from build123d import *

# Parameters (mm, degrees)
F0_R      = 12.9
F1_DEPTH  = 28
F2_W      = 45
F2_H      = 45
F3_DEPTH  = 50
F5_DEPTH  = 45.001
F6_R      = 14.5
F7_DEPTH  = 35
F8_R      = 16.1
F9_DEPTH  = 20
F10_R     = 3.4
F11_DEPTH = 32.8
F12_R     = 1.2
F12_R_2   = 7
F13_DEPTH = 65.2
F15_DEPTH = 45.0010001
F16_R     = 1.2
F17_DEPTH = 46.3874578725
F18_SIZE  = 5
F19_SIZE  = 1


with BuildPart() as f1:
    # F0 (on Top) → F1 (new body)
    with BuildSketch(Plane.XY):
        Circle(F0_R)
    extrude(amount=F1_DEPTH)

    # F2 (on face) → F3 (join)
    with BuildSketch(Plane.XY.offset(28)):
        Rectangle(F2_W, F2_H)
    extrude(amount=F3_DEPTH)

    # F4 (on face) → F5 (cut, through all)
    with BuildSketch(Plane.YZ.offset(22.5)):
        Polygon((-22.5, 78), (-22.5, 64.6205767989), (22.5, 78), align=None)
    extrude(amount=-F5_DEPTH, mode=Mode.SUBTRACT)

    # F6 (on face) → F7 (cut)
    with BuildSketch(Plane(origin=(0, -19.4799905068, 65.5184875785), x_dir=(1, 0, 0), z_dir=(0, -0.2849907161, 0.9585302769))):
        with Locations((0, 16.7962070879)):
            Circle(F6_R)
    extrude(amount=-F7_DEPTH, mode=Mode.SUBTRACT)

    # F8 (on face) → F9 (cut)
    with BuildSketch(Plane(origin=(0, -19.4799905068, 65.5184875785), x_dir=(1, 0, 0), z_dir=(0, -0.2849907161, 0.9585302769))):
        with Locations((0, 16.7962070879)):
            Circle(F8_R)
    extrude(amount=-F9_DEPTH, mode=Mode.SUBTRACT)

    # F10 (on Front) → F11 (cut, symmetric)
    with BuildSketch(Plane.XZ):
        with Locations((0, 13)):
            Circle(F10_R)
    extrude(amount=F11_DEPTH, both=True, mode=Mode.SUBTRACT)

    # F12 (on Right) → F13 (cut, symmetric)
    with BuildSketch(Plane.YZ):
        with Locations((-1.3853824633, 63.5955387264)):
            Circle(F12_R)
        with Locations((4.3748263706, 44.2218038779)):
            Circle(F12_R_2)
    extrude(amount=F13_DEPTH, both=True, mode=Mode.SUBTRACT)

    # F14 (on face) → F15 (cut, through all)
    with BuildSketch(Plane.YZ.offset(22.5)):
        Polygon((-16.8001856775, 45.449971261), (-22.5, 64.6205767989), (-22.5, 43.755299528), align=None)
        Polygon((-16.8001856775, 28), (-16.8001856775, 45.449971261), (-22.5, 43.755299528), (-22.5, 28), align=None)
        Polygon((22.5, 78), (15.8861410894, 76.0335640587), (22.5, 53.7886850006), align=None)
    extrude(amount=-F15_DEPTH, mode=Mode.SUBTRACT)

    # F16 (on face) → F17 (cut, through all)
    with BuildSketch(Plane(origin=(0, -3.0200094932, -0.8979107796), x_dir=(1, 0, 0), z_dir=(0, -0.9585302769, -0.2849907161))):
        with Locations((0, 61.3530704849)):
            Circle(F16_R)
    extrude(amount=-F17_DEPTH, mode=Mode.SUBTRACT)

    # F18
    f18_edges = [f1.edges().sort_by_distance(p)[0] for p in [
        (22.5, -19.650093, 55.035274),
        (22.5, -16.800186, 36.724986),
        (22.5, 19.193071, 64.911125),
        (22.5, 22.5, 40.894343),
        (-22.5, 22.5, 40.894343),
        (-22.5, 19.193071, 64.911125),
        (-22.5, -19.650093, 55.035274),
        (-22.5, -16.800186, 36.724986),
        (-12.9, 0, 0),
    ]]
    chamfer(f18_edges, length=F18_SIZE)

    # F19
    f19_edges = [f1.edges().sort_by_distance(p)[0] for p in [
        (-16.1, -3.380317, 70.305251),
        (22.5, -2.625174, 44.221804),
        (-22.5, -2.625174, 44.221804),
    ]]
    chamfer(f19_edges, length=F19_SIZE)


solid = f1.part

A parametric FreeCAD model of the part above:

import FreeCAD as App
import Part
import Sketcher


def edges_at(feature, points):
    """Names of the edges that pass closest to the given points."""
    edges = feature.Shape.Edges
    near = lambda p: min(range(len(edges)), key=lambda i: edges[i].distToShape(Part.Vertex(*p))[0])
    return sorted({f"Edge{near(p) + 1}" for p in points})


def add_polygon(sketch, points):
    """Adds a closed chain of lines whose ends are joined by coincident constraints."""
    first, n = sketch.GeometryCount, len(points)
    for a, b in zip(points, points[1:] + points[:1]):
        sketch.addGeometry(Part.LineSegment(App.Vector(*a, 0), App.Vector(*b, 0)), False)
    for i in range(n):
        sketch.addConstraint(Sketcher.Constraint("Coincident", first + i, 2, first + (i + 1) % n, 1))

doc = App.newDocument("Part")
params = doc.addObject("Spreadsheet::Sheet", "Params")
for row, (alias, value) in enumerate([
    ("sketch1_diameter", "25.8 mm"),
    ("pad1_length", "28 mm"),
    ("sketch2_width", "45 mm"),
    ("pad2_length", "50 mm"),
    ("sketch3_width", "45 mm"),
    ("sketch4_diameter", "29 mm"),
    ("pocket2_length", "35 mm"),
    ("sketch5_diameter", "32.2 mm"),
    ("pocket3_length", "20 mm"),
    ("sketch6_diameter", "6.8 mm"),
    ("pocket4_length", "65.6 mm"),
    ("sketch7_diameter", "14 mm"),
    ("sketch7_diameter2", "2.4 mm"),
    ("pocket5_length", "130.4 mm"),
    ("sketch8_length", "20 mm"),
    ("sketch8_length2", "6.9 mm"),
    ("sketch9_diameter", "2.4 mm"),
    ("chamfer_size", "5 mm"),
    ("chamfer2_size", "1 mm"),
], start=1):
    params.set(f"A{row}", alias)
    params.set(f"B{row}", "=" + value)
    params.setAlias(f"B{row}", alias)

body = doc.addObject("PartDesign::Body", "Body")

# Sketch on XY plane
sketch1 = body.newObject("Sketcher::SketchObject", "Sketch")
sketch1.AttachmentSupport = (doc.getObject("XY_Plane"), [""])
sketch1.MapMode = "FlatFace"
sketch1.addGeometry(Part.Circle(App.Vector(0, 0, 0), App.Vector(0, 0, 1), 13), False)
sketch1.addConstraint(Sketcher.Constraint("Coincident", 0, 3, -1, 1))
sketch1.addConstraint(Sketcher.Constraint("Diameter", 0, 25.8))
sketch1.setExpression("Constraints[1]", "Params.sketch1_diameter")
pad1 = body.newObject("PartDesign::Pad", "Pad")
pad1.Profile = sketch1
pad1.setExpression("Length", "Params.pad1_length")

# Sketch on XY plane
sketch2 = body.newObject("Sketcher::SketchObject", "Sketch001")
sketch2.AttachmentSupport = (doc.getObject("XY_Plane"), [""])
sketch2.MapMode = "FlatFace"
sketch2.AttachmentOffset = App.Placement(App.Vector(0, 0, 28), App.Rotation())
add_polygon(sketch2, [(-22, 22), (-22, -22), (22, -22), (22, 22)])  # lines 0-3
sketch2.addConstraint(Sketcher.Constraint("Vertical", 0))
sketch2.addConstraint(Sketcher.Constraint("Horizontal", 1))
sketch2.addConstraint(Sketcher.Constraint("Vertical", 2))
sketch2.addConstraint(Sketcher.Constraint("Horizontal", 3))
sketch2.addConstraint(Sketcher.Constraint("Symmetric", 0, 2, 2, 2, -1, 1))
sketch2.addConstraint(Sketcher.Constraint("Equal", 3, 0))
sketch2.addConstraint(Sketcher.Constraint("DistanceX", 1, 1, 1, 2, 45.0))
sketch2.setExpression("Constraints[10]", "Params.sketch2_width")
pad2 = body.newObject("PartDesign::Pad", "Pad001")
pad2.Profile = sketch2
pad2.setExpression("Length", "Params.pad2_length")

# Sketch on YZ plane
sketch3 = body.newObject("Sketcher::SketchObject", "Sketch002")
sketch3.AttachmentSupport = (doc.getObject("YZ_Plane"), [""])
sketch3.MapMode = "FlatFace"
sketch3.AttachmentOffset = App.Placement(App.Vector(0, 0, 22.5), App.Rotation())
add_polygon(sketch3, [(-22, 78), (-22, 65), (22, 78)])  # lines 0-2
sketch3.addConstraint(Sketcher.Constraint("Vertical", 0))
sketch3.addConstraint(Sketcher.Constraint("Horizontal", 2))
sketch3.addConstraint(Sketcher.Constraint("DistanceX", 2, 2, 2, 1, 45.0))
sketch3.addConstraint(Sketcher.Constraint("DistanceY", -1, 1, 1, 2, 78.0))
sketch3.addConstraint(Sketcher.Constraint("DistanceX", 0, 2, -1, 1, 22.5))
sketch3.addConstraint(Sketcher.Constraint("DistanceY", 0, 2, 0, 1, 13.379423))
sketch3.setExpression("Constraints[5]", "Params.sketch3_width")
pocket1 = body.newObject("PartDesign::Pocket", "Pocket")
pocket1.Profile = sketch3
pocket1.Type = "ThroughAll"

# Sketch on an angled plane
sketch4 = body.newObject("Sketcher::SketchObject", "Sketch003")
sketch4.Placement = App.Placement(App.Vector(0, -19.479991, 65.518488), App.Rotation(App.Vector(1, 0, 0), App.Vector(0, 0.958530277, 0.284990716), App.Vector(0, -0.284990716, 0.958530277), "ZXY"))
sketch4.addGeometry(Part.Circle(App.Vector(0, 17, 0), App.Vector(0, 0, 1), 14), False)
sketch4.addConstraint(Sketcher.Constraint("PointOnObject", 0, 3, -2))
sketch4.addConstraint(Sketcher.Constraint("Diameter", 0, 29.0))
sketch4.addConstraint(Sketcher.Constraint("DistanceY", -1, 1, 0, 3, 16.796207))
sketch4.setExpression("Constraints[1]", "Params.sketch4_diameter")
pocket2 = body.newObject("PartDesign::Pocket", "Pocket001")
pocket2.Profile = sketch4
pocket2.setExpression("Length", "Params.pocket2_length")

# Sketch on an angled plane
sketch5 = body.newObject("Sketcher::SketchObject", "Sketch004")
sketch5.Placement = App.Placement(App.Vector(0, -19.479991, 65.518488), App.Rotation(App.Vector(1, 0, 0), App.Vector(0, 0.958530277, 0.284990716), App.Vector(0, -0.284990716, 0.958530277), "ZXY"))
sketch5.addGeometry(Part.Circle(App.Vector(0, 17, 0), App.Vector(0, 0, 1), 16), False)
sketch5.addConstraint(Sketcher.Constraint("PointOnObject", 0, 3, -2))
sketch5.addConstraint(Sketcher.Constraint("Diameter", 0, 32.2))
sketch5.addConstraint(Sketcher.Constraint("DistanceY", -1, 1, 0, 3, 16.796207))
sketch5.setExpression("Constraints[1]", "Params.sketch5_diameter")
pocket3 = body.newObject("PartDesign::Pocket", "Pocket002")
pocket3.Profile = sketch5
pocket3.setExpression("Length", "Params.pocket3_length")

# Sketch on XZ plane
sketch6 = body.newObject("Sketcher::SketchObject", "Sketch005")
sketch6.AttachmentSupport = (doc.getObject("XZ_Plane"), [""])
sketch6.MapMode = "FlatFace"
sketch6.addGeometry(Part.Circle(App.Vector(0, 13, 0), App.Vector(0, 0, 1), 3.4), False)
sketch6.addConstraint(Sketcher.Constraint("PointOnObject", 0, 3, -2))
sketch6.addConstraint(Sketcher.Constraint("Diameter", 0, 6.8))
sketch6.addConstraint(Sketcher.Constraint("DistanceY", -1, 1, 0, 3, 13.0))
sketch6.setExpression("Constraints[1]", "Params.sketch6_diameter")
pocket4 = body.newObject("PartDesign::Pocket", "Pocket003")
pocket4.Profile = sketch6
pocket4.setExpression("Length", "Params.pocket4_length")
pocket4.Midplane = True

# Sketch on YZ plane
sketch7 = body.newObject("Sketcher::SketchObject", "Sketch006")
sketch7.AttachmentSupport = (doc.getObject("YZ_Plane"), [""])
sketch7.MapMode = "FlatFace"
sketch7.addGeometry(Part.Circle(App.Vector(-1.4, 63.6, 0), App.Vector(0, 0, 1), 1.2), False)
sketch7.addGeometry(Part.Circle(App.Vector(4.4, 44.2, 0), App.Vector(0, 0, 1), 7), False)
sketch7.addConstraint(Sketcher.Constraint("Diameter", 1, 14.0))
sketch7.addConstraint(Sketcher.Constraint("Diameter", 0, 2.4))
sketch7.addConstraint(Sketcher.Constraint("DistanceY", -1, 1, 0, 3, 63.595539))
sketch7.addConstraint(Sketcher.Constraint("DistanceX", 0, 3, 1, 3, 5.760209))
sketch7.addConstraint(Sketcher.Constraint("DistanceX", 0, 3, -1, 1, 1.385382))
sketch7.addConstraint(Sketcher.Constraint("DistanceY", -1, 1, 1, 3, 44.221804))
sketch7.setExpression("Constraints[0]", "Params.sketch7_diameter")
sketch7.setExpression("Constraints[1]", "Params.sketch7_diameter2")
pocket5 = body.newObject("PartDesign::Pocket", "Pocket004")
pocket5.Profile = sketch7
pocket5.setExpression("Length", "Params.pocket5_length")
pocket5.Midplane = True

# Sketch on YZ plane
sketch8 = body.newObject("Sketcher::SketchObject", "Sketch007")
sketch8.AttachmentSupport = (doc.getObject("YZ_Plane"), [""])
sketch8.MapMode = "FlatFace"
sketch8.AttachmentOffset = App.Placement(App.Vector(0, 0, 22.5), App.Rotation())
add_polygon(sketch8, [(-17, 45), (-22, 65), (-22, 28), (-17, 28)])  # lines 0-3
add_polygon(sketch8, [(22, 78), (16, 76), (22, 54)])  # lines 4-6
sketch8.addConstraint(Sketcher.Constraint("Vertical", 1))
sketch8.addConstraint(Sketcher.Constraint("Horizontal", 2))
sketch8.addConstraint(Sketcher.Constraint("Vertical", 3))
sketch8.addConstraint(Sketcher.Constraint("Vertical", 6))
sketch8.addConstraint(Sketcher.Constraint("Perpendicular", 0, 4))
sketch8.addConstraint(Sketcher.Constraint("Perpendicular", 4, 5))
sketch8.addConstraint(Sketcher.Constraint("Distance", 0, 20.0))
sketch8.addConstraint(Sketcher.Constraint("DistanceY", -1, 1, 1, 2, 28.0))
sketch8.addConstraint(Sketcher.Constraint("DistanceY", -1, 1, 6, 2, 78.0))
sketch8.addConstraint(Sketcher.Constraint("DistanceX", 0, 2, 5, 2, 45.0))
sketch8.addConstraint(Sketcher.Constraint("Distance", 4, 6.9))
sketch8.addConstraint(Sketcher.Constraint("DistanceX", 0, 2, -1, 1, 22.5))
sketch8.addConstraint(Sketcher.Constraint("DistanceY", 3, 1, 3, 2, 17.449971))
sketch8.addConstraint(Sketcher.Constraint("Distance", 5, 23.207278))
sketch8.setExpression("Constraints[13]", "Params.sketch8_length")
sketch8.setExpression("Constraints[17]", "Params.sketch8_length2")
pocket6 = body.newObject("PartDesign::Pocket", "Pocket005")
pocket6.Profile = sketch8
pocket6.Type = "ThroughAll"

# Sketch on an angled plane
sketch9 = body.newObject("Sketcher::SketchObject", "Sketch008")
sketch9.Placement = App.Placement(App.Vector(0, -3.020009, -0.897911), App.Rotation(App.Vector(1, 0, 0), App.Vector(0, -0.284990716, 0.958530277), App.Vector(0, -0.958530277, -0.284990716), "ZXY"))
sketch9.addGeometry(Part.Circle(App.Vector(0, 61.4, 0), App.Vector(0, 0, 1), 1.2), False)
sketch9.addConstraint(Sketcher.Constraint("PointOnObject", 0, 3, -2))
sketch9.addConstraint(Sketcher.Constraint("Diameter", 0, 2.4))
sketch9.addConstraint(Sketcher.Constraint("DistanceY", -1, 1, 0, 3, 61.35307))
sketch9.setExpression("Constraints[1]", "Params.sketch9_diameter")
pocket7 = body.newObject("PartDesign::Pocket", "Pocket006")
pocket7.Profile = sketch9
pocket7.Type = "ThroughAll"
doc.recompute()

chamfer = body.newObject("PartDesign::Chamfer", "Chamfer")
chamfer.Base = (pocket7, edges_at(pocket7, [
    (22.5, -19.65, 55.035),
    (22.5, -16.8, 36.725),
    (22.5, 19.193, 64.911),
    (22.5, 22.5, 40.894),
    (-22.5, 22.5, 40.894),
    (-22.5, 19.193, 64.911),
    (-22.5, -19.65, 55.035),
    (-22.5, -16.8, 36.725),
    (-12.9, 0, 0),
]))
chamfer.setExpression("Size", "Params.chamfer_size")
doc.recompute()

chamfer2 = body.newObject("PartDesign::Chamfer", "Chamfer001")
chamfer2.Base = (chamfer, edges_at(chamfer, [(-16.1, -3.38, 70.305), (22.5, -2.625, 44.222), (-22.5, -2.625, 44.222)]))
chamfer2.setExpression("Size", "Params.chamfer2_size")

doc.recompute()
